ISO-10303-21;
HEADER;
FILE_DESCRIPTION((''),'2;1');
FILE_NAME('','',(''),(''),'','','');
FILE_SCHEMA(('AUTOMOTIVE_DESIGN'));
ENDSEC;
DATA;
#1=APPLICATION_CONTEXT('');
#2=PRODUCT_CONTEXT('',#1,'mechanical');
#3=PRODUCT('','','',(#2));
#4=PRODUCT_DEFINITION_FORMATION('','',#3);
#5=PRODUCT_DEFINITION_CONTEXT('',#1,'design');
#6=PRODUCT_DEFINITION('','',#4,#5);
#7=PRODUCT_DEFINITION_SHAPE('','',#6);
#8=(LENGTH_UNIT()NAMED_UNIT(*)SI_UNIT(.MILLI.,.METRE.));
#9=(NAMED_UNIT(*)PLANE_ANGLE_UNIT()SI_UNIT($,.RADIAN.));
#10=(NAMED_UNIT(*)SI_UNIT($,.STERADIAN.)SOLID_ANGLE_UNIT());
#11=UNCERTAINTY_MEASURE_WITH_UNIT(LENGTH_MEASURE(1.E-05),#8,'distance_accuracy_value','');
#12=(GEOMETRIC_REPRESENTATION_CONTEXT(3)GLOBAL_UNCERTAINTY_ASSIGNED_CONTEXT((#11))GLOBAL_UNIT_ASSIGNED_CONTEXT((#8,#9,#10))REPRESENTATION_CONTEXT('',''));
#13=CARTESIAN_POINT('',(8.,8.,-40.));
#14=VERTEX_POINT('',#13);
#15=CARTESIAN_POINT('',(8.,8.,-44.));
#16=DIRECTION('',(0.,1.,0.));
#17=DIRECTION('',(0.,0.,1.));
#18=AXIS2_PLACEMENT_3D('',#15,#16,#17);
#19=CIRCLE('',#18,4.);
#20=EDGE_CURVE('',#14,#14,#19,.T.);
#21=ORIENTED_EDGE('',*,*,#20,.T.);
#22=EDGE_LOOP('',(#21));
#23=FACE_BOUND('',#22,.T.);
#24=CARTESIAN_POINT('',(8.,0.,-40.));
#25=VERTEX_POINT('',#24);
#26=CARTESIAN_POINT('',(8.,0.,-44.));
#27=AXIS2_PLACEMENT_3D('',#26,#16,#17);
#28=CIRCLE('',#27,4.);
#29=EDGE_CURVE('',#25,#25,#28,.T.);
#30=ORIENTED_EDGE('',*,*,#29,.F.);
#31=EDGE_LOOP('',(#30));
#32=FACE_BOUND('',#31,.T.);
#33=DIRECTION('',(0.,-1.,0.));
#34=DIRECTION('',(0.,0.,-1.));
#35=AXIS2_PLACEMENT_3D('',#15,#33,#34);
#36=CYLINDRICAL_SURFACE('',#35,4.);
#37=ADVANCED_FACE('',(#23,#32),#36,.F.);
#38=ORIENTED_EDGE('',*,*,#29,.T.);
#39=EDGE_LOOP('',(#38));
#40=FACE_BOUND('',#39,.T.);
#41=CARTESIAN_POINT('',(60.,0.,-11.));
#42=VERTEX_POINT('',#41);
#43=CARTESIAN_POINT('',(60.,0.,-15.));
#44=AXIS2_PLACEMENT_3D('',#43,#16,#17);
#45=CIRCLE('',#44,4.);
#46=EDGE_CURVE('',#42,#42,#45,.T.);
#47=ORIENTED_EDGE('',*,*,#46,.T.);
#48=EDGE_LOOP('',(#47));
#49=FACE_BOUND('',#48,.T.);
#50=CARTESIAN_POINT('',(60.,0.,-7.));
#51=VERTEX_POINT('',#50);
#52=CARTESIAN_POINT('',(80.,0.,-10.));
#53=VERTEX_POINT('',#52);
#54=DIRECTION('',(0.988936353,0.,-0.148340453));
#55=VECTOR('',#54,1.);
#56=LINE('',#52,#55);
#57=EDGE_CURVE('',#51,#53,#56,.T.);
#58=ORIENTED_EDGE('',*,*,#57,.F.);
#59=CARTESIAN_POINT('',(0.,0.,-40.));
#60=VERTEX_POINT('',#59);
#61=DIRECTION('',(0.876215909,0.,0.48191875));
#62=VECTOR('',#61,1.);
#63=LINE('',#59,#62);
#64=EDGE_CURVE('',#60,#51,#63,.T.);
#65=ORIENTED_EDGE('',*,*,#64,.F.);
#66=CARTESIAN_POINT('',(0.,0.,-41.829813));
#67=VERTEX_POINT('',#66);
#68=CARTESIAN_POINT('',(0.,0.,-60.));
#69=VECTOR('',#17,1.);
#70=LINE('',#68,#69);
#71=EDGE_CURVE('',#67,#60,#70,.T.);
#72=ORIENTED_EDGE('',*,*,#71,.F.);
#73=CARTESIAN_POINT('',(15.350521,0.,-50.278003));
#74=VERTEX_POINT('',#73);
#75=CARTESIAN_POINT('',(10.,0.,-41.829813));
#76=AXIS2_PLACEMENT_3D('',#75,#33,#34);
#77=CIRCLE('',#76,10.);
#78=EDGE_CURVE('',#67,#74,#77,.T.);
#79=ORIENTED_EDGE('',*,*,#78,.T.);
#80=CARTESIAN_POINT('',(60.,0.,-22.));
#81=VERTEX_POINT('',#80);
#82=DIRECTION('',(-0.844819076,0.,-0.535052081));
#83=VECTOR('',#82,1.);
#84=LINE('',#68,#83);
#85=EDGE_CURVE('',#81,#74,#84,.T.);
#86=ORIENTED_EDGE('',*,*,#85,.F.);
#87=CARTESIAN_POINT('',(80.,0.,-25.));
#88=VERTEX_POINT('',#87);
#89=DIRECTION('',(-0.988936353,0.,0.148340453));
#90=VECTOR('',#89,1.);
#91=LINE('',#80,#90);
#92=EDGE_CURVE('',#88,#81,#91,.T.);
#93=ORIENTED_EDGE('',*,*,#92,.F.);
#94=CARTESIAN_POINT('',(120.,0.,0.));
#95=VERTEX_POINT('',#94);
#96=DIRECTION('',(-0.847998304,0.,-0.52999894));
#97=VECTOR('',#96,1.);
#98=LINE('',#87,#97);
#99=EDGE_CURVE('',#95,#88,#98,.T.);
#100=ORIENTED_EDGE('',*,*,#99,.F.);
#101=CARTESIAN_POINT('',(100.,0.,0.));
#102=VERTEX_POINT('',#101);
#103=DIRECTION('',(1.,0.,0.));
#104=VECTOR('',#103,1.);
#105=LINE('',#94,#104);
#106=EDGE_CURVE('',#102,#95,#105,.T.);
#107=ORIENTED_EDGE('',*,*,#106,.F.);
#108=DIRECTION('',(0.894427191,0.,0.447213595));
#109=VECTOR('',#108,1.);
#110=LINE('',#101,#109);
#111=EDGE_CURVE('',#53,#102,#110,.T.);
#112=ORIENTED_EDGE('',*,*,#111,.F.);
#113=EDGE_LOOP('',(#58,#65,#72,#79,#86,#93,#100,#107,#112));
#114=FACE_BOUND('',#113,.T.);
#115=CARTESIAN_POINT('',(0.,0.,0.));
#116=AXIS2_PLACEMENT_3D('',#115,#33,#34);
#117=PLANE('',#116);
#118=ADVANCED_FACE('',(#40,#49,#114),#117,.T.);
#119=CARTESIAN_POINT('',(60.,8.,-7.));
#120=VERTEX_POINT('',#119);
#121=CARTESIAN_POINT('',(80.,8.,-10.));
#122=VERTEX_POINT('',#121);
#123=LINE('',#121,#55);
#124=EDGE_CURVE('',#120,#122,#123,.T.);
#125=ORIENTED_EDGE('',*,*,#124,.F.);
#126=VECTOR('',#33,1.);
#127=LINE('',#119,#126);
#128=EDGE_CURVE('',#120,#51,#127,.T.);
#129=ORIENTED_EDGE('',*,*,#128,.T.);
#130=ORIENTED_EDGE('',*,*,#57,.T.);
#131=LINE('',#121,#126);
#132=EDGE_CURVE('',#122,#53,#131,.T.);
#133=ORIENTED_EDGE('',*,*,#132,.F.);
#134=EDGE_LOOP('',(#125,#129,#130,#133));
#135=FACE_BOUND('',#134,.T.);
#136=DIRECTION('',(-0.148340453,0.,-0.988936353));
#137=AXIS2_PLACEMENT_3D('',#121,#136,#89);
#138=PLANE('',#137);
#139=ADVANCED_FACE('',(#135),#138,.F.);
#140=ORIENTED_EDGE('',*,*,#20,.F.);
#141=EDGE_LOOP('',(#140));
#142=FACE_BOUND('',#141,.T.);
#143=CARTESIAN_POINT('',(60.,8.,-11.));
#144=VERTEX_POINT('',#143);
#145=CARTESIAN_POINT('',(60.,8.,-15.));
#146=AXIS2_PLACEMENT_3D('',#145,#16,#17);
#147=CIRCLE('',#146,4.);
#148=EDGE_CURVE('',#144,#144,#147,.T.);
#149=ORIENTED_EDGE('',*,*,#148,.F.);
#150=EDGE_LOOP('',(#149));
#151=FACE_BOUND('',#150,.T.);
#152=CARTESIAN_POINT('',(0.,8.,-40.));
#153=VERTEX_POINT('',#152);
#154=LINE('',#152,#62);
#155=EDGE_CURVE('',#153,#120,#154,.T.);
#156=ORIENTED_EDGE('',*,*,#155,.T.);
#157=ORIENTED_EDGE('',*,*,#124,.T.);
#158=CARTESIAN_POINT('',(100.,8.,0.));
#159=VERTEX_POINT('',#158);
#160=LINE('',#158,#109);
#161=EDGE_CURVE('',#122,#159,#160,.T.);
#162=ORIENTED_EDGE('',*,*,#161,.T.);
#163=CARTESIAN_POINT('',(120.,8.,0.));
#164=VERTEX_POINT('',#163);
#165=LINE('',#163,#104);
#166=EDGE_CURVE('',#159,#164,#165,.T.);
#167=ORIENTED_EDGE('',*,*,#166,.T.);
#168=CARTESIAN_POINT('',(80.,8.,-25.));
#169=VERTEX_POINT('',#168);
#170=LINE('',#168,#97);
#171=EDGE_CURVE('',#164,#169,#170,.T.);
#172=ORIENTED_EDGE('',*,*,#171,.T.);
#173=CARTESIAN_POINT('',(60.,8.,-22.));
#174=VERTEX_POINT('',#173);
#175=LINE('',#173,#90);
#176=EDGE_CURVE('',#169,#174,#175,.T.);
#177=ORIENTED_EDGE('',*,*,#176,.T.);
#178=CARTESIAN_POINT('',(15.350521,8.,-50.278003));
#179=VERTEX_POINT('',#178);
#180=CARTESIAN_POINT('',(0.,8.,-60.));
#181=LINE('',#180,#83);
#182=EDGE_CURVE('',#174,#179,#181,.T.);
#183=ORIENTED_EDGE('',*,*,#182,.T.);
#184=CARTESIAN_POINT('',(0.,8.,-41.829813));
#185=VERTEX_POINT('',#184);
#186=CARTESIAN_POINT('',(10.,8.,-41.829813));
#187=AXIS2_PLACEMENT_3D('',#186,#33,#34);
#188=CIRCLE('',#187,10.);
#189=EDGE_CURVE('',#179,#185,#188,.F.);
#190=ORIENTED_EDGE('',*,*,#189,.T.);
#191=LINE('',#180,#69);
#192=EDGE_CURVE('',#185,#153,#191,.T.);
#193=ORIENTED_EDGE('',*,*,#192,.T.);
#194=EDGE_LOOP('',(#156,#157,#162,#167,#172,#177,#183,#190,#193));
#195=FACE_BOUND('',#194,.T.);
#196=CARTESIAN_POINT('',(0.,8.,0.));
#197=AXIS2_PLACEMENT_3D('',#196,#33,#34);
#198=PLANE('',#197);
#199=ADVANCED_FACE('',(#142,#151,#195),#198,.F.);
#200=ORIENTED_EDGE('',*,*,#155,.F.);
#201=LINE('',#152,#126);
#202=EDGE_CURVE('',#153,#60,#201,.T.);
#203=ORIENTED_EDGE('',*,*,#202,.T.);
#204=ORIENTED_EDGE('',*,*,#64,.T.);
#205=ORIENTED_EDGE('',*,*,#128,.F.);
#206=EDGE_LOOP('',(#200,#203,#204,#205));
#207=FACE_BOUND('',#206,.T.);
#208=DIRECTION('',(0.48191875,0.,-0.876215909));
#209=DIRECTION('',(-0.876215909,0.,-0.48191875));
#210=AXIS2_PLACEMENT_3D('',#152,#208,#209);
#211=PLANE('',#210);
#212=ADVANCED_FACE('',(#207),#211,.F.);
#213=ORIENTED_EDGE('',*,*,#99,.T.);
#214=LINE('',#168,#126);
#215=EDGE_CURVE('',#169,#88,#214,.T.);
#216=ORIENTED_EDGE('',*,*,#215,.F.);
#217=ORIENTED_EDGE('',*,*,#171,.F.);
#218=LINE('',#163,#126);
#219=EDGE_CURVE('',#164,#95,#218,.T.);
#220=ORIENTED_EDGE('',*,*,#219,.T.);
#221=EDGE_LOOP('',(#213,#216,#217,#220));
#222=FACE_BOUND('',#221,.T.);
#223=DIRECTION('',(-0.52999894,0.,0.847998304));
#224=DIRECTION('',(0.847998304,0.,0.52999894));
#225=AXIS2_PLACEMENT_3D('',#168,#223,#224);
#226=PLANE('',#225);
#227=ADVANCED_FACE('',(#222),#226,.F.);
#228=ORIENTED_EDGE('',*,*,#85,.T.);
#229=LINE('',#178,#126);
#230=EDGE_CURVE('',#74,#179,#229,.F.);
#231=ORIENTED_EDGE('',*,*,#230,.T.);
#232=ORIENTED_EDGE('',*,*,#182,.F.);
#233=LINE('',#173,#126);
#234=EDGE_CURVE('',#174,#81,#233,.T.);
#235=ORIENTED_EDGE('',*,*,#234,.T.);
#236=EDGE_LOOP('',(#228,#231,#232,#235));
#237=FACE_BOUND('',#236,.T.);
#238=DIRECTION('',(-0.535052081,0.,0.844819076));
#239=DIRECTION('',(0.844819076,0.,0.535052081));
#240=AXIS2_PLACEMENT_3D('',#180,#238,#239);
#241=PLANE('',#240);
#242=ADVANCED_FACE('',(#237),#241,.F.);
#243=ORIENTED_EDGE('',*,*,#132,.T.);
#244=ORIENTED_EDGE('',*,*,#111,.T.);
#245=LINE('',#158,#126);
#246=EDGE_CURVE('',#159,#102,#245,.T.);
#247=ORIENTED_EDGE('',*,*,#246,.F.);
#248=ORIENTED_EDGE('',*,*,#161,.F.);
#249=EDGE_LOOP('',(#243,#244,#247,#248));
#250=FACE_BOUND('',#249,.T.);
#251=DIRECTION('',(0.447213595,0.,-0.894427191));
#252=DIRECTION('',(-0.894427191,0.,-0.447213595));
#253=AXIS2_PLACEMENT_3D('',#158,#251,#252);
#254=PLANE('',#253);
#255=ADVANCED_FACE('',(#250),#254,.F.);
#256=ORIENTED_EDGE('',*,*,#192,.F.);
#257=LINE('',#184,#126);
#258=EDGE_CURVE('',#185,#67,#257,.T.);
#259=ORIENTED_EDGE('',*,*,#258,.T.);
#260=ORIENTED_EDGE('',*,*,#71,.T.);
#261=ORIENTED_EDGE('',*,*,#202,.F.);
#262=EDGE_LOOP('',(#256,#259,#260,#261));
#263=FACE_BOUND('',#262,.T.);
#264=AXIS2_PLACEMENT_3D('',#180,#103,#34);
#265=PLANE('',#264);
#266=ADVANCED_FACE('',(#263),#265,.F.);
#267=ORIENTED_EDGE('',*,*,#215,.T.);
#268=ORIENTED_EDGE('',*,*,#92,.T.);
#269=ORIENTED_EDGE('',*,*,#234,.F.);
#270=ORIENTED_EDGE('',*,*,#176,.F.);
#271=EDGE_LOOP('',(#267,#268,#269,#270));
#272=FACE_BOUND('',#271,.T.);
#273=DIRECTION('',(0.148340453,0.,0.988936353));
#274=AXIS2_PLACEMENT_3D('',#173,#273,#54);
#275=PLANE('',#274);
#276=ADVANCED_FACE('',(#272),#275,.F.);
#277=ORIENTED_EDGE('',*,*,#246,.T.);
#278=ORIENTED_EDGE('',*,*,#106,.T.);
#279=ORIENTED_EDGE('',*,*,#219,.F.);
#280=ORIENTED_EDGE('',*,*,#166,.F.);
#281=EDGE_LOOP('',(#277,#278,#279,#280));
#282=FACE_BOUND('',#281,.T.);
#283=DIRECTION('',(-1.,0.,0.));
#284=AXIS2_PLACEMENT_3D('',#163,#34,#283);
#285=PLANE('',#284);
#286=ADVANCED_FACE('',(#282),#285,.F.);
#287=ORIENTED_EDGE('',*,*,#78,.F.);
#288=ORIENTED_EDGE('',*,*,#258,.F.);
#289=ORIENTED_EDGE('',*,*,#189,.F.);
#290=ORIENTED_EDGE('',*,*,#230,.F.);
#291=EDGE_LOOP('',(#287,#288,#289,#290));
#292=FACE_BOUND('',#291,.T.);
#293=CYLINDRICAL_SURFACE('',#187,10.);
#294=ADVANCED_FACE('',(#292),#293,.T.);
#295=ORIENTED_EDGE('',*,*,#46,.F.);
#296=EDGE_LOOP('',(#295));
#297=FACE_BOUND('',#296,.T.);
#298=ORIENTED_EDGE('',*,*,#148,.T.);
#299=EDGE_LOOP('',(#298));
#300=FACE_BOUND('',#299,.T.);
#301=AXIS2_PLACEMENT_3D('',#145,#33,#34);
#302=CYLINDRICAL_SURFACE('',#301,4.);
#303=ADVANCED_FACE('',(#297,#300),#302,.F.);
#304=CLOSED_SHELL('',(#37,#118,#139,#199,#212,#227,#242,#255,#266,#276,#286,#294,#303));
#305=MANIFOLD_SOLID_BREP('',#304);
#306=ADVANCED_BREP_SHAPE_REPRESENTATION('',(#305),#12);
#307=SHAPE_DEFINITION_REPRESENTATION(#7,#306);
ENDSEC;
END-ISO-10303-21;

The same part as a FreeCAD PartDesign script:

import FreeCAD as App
import Part
import Sketcher
Q = App.Units.Quantity


def edges_at(feature, points):
    """Names of the edges that pass closest to the given points."""
    edges = feature.Shape.Edges
    near = lambda p: min(range(len(edges)), key=lambda i: edges[i].distToShape(Part.Vertex(*p))[0])
    return sorted({f"Edge{near(p) + 1}" for p in points})

doc = App.newDocument("Part")
params = doc.addObject("Spreadsheet::Sheet", "Params")
for row, (alias, value) in enumerate([
    ("sketch1_diameter", "8 mm"),
    ("sketch1_width", "20 mm"),
    ("pad1_length", "8 mm"),
    ("fillet_radius", "10 mm"),
], start=1):
    params.set(f"A{row}", alias)
    params.set(f"B{row}", "=" + value)
    params.setAlias(f"B{row}", alias)

body = doc.addObject("PartDesign::Body", "Body")

# Sketch on XZ plane
sketch1 = body.newObject("Sketcher::SketchObject", "Sketch")
sketch1.AttachmentSupport = (doc.getObject("XZ_Plane"), [""])
sketch1.MapMode = "FlatFace"
sketch1.addGeometry(Part.LineSegment(App.Vector(100, 0, 0), App.Vector(120, 0, 0)), False)
sketch1.addGeometry(Part.LineSegment(App.Vector(120, 0, 0), App.Vector(80, -25, 0)), False)
sketch1.addGeometry(Part.LineSegment(App.Vector(80, -25, 0), App.Vector(60, -22, 0)), False)
sketch1.addGeometry(Part.LineSegment(App.Vector(60, -22, 0), App.Vector(0, -60, 0)), False)
sketch1.addGeometry(Part.LineSegment(App.Vector(0, -60, 0), App.Vector(0, -40, 0)), False)
sketch1.addGeometry(Part.LineSegment(App.Vector(0, -40, 0), App.Vector(60, -7, 0)), False)
sketch1.addGeometry(Part.LineSegment(App.Vector(60, -7, 0), App.Vector(80, -10, 0)), False)
sketch1.addGeometry(Part.LineSegment(App.Vector(80, -10, 0), App.Vector(100, 0, 0)), False)
sketch1.addGeometry(Part.Circle(App.Vector(60, -15, 0), App.Vector(0, 0, 1), 4), False)
sketch1.addGeometry(Part.Circle(App.Vector(8, -44, 0), App.Vector(0, 0, 1), 4), False)
sketch1.addConstraint(Sketcher.Constraint("Coincident", 0, 2, 1, 1))
sketch1.addConstraint(Sketcher.Constraint("Coincident", 1, 2, 2, 1))
sketch1.addConstraint(Sketcher.Constraint("Coincident", 2, 2, 3, 1))
sketch1.addConstraint(Sketcher.Constraint("Coincident", 3, 2, 4, 1))
sketch1.addConstraint(Sketcher.Constraint("Coincident", 4, 2, 5, 1))
sketch1.addConstraint(Sketcher.Constraint("Coincident", 5, 2, 6, 1))
sketch1.addConstraint(Sketcher.Constraint("Coincident", 6, 2, 7, 1))
sketch1.addConstraint(Sketcher.Constraint("Coincident", 7, 2, 0, 1))
sketch1.addConstraint(Sketcher.Constraint("Horizontal", 0))
sketch1.addConstraint(Sketcher.Constraint("Vertical", 4))
sketch1.addConstraint(Sketcher.Constraint("Equal", 8, 9))
sketch1.addConstraint(Sketcher.Constraint("PointOnObject", 0, 2, -1))
sketch1.addConstraint(Sketcher.Constraint("PointOnObject", 3, 2, -2))
sketch1.addConstraint(Sketcher.Constraint("Parallel", 2, 6))
sketch1.addConstraint(Sketcher.Constraint("Vertical", 8, 3, 2, 2))
sketch1.addConstraint(Sketcher.Constraint("Vertical", 2, 2, 5, 2))
sketch1.addConstraint(Sketcher.Constraint("Vertical", 1, 2, 6, 2))
sketch1.addConstraint(Sketcher.Constraint("Equal", 0, 4))
sketch1.addConstraint(Sketcher.Constraint("Diameter", 8, Q("8 mm")))
sketch1.addConstraint(Sketcher.Constraint("DistanceX", 0, 1, 0, 2, Q("20 mm")))
sketch1.addConstraint(Sketcher.Constraint("DistanceX", -1, 1, 8, 3, Q("60 mm")))
sketch1.addConstraint(Sketcher.Constraint("DistanceY", 8, 3, -1, 1, Q("15 mm")))
sketch1.addConstraint(Sketcher.Constraint("DistanceX", -1, 1, 9, 3, Q("8 mm")))
sketch1.addConstraint(Sketcher.Constraint("DistanceY", 9, 3, -1, 1, Q("44 mm")))
sketch1.addConstraint(Sketcher.Constraint("DistanceX", -1, 1, 0, 2, Q("120 mm")))
sketch1.addConstraint(Sketcher.Constraint("DistanceX", -1, 1, 1, 2, Q("80 mm")))
sketch1.addConstraint(Sketcher.Constraint("DistanceY", 1, 2, -1, 1, Q("25 mm")))
sketch1.addConstraint(Sketcher.Constraint("DistanceY", 2, 2, -1, 1, Q("22 mm")))
sketch1.addConstraint(Sketcher.Constraint("DistanceY", 3, 2, -1, 1, Q("60 mm")))
sketch1.addConstraint(Sketcher.Constraint("DistanceY", 5, 2, -1, 1, Q("7 mm")))
sketch1.setExpression("Constraints[18]", "Params.sketch1_diameter")
sketch1.setExpression("Constraints[19]", "Params.sketch1_width")
pad1 = body.newObject("PartDesign::Pad", "Pad")
pad1.Profile = sketch1
pad1.setExpression("Length", "Params.pad1_length")
pad1.Reversed = True
doc.recompute()

fillet = body.newObject("PartDesign::Fillet", "Fillet")
fillet.Base = (pad1, edges_at(pad1, [(0, 4, -60)]))
fillet.setExpression("Radius", "Params.fillet_radius")

doc.recompute()
